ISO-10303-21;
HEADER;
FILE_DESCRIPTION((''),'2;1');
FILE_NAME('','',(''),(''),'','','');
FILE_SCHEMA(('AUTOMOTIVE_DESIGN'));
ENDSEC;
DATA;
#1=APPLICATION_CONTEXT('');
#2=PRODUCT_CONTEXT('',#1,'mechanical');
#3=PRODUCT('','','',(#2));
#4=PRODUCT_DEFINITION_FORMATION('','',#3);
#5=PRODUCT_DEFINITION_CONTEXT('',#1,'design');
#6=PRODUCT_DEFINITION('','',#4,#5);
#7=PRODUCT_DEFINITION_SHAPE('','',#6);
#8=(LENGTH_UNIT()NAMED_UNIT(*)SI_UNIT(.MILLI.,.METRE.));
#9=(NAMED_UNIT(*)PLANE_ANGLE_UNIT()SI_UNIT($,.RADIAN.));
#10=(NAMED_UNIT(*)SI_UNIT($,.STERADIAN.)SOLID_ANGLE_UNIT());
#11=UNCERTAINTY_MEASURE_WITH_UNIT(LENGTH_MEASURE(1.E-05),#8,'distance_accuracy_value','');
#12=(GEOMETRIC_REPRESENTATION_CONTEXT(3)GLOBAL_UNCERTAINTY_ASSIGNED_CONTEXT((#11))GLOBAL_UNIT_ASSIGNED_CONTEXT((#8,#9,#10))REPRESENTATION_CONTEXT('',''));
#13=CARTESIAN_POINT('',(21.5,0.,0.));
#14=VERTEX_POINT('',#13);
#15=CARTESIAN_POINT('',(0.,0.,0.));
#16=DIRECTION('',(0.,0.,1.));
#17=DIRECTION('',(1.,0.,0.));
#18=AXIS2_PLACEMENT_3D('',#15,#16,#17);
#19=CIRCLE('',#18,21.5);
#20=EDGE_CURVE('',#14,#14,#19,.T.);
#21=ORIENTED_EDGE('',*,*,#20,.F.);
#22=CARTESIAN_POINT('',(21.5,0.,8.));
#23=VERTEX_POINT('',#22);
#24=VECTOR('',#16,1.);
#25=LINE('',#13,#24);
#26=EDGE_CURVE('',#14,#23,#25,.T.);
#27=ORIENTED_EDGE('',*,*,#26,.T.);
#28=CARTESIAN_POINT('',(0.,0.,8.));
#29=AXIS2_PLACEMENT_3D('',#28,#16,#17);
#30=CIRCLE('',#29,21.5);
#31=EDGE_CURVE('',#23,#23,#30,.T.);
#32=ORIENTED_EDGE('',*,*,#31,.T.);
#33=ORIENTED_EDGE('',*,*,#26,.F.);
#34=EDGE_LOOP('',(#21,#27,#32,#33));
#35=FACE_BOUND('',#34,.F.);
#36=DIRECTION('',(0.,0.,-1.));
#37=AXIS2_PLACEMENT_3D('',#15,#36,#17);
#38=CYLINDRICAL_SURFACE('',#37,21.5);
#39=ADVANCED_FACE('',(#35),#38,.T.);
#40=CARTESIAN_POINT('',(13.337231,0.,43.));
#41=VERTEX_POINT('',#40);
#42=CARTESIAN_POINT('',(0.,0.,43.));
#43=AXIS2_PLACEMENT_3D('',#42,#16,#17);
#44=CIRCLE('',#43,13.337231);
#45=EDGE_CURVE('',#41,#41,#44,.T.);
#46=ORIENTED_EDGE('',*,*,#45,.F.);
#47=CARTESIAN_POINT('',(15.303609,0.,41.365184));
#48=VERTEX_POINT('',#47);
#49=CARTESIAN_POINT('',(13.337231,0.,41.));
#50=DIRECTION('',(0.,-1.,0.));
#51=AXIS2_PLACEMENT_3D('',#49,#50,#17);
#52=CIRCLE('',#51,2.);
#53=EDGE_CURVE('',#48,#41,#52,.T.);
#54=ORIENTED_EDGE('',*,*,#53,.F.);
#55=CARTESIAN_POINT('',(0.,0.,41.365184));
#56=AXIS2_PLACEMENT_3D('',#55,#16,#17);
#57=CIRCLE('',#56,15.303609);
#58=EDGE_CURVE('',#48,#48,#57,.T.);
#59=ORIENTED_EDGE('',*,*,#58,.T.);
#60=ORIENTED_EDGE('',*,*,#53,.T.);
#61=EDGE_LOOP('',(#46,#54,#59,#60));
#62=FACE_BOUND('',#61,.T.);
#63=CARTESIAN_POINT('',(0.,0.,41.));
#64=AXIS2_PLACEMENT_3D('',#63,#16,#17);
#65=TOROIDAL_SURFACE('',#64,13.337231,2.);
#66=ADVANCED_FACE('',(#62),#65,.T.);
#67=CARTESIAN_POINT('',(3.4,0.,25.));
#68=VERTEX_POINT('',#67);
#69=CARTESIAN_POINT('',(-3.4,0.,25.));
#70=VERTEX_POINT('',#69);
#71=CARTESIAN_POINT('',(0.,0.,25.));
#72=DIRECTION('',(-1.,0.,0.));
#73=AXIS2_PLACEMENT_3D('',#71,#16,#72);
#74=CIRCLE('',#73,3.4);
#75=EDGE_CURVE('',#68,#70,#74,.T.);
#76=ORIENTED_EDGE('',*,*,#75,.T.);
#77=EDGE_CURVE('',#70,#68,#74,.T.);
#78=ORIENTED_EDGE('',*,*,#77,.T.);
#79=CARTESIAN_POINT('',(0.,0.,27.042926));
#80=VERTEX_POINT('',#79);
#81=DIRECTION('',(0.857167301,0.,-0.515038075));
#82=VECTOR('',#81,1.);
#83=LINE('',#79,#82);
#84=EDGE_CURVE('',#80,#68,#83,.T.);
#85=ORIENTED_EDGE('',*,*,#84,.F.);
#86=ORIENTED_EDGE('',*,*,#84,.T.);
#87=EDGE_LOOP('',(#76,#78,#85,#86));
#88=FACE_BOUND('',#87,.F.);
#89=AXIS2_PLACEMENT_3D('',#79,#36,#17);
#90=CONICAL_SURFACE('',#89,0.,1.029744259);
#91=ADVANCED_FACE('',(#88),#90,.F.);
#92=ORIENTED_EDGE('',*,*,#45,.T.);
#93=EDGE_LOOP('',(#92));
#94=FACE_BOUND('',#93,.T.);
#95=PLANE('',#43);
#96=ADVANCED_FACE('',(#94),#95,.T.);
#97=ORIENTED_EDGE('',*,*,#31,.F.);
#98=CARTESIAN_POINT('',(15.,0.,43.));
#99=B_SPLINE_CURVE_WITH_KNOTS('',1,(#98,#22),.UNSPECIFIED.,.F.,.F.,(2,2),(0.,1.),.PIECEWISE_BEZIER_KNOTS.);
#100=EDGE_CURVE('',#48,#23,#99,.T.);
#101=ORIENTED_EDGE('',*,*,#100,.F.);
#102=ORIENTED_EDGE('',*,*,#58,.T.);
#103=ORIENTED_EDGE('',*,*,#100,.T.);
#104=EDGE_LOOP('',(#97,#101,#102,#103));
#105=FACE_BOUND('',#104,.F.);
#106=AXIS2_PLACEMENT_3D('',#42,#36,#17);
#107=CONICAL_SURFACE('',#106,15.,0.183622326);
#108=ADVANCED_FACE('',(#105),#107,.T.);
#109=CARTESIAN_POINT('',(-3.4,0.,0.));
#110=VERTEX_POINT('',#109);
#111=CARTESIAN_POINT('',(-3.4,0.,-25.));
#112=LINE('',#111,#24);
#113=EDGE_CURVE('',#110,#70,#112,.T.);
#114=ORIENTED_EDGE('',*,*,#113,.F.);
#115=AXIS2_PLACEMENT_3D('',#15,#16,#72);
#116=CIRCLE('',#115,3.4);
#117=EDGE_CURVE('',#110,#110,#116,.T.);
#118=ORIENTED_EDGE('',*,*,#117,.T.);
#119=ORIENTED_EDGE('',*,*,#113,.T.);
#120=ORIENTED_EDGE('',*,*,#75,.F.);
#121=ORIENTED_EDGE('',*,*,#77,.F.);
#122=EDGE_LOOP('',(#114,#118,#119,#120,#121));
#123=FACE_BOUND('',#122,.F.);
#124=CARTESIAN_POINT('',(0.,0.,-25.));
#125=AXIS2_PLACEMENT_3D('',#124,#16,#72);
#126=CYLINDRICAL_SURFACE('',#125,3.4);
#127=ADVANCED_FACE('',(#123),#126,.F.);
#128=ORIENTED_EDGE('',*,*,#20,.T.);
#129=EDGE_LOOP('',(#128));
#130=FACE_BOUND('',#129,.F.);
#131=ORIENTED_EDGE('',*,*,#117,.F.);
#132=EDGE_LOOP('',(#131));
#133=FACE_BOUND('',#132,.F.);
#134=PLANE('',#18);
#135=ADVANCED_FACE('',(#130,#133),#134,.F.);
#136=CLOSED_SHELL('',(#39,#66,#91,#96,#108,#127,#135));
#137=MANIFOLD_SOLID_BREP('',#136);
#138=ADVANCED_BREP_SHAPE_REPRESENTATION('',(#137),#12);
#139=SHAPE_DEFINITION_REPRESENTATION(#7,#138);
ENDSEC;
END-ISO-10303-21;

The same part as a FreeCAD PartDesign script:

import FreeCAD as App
import Part
import Sketcher

V = App.Vector
Q = App.Units.Quantity


def edges_at(feature, points):
    """Names of the edges that pass closest to the given points."""
    edges = feature.Shape.Edges
    near = lambda p: min(range(len(edges)), key=lambda i: edges[i].distToShape(Part.Vertex(*p))[0])
    return sorted({f"Edge{near(p) + 1}" for p in points})

doc = App.newDocument("Part")
body = doc.addObject("PartDesign::Body", "Body")

sketch1 = body.newObject("Sketcher::SketchObject", "Sketch")
sketch1.AttachmentSupport = (doc.getObject("XY_Plane"), [""])
sketch1.MapMode = "FlatFace"
sketch1.addGeometry(Part.Circle(V(0, 0, 0), V(0, 0, 1), 22), False)
sketch1.addConstraint(Sketcher.Constraint("Coincident", 0, 3, -1, 1))
sketch1.addConstraint(Sketcher.Constraint("Diameter", 0, Q("43 mm")))
pad1 = body.newObject("PartDesign::Pad", "Pad")
pad1.Profile = sketch1
pad1.Length = 8

sketch2 = body.newObject("Sketcher::SketchObject", "Sketch001")
sketch2.AttachmentSupport = (doc.getObject("XY_Plane"), [""])
sketch2.MapMode = "FlatFace"
sketch2.AttachmentOffset = App.Placement(V(0, 0, 43), App.Rotation())
sketch2.addGeometry(Part.Circle(V(0, 0, 0), V(0, 0, 1), 15), False)
sketch2.addConstraint(Sketcher.Constraint("Coincident", 0, 3, -1, 1))
sketch2.addConstraint(Sketcher.Constraint("Diameter", 0, Q("30 mm")))

sketch3 = body.newObject("Sketcher::SketchObject", "Sketch002")
sketch3.AttachmentSupport = (doc.getObject("XY_Plane"), [""])
sketch3.MapMode = "FlatFace"
sketch3.AttachmentOffset = App.Placement(V(0, 0, 8), App.Rotation())
sketch3.addGeometry(Part.Circle(V(0, 0, 0), V(0, 0, 1), 22), False)
sketch3.addConstraint(Sketcher.Constraint("Coincident", 0, 3, -1, 1))
sketch3.addConstraint(Sketcher.Constraint("Diameter", 0, Q("43 mm")))

additiveloft = body.newObject("PartDesign::AdditiveLoft", "AdditiveLoft")
additiveloft.Profile = sketch2
additiveloft.Sections = [sketch3]

sketch4 = body.newObject("Sketcher::SketchObject", "Sketch003")
sketch4.AttachmentSupport = (doc.getObject("XY_Plane"), [""])
sketch4.MapMode = "FlatFace"
sketch4.addGeometry(Part.Circle(V(0, 0, 0), V(0, 0, 1), 3.4), False)
sketch4.addConstraint(Sketcher.Constraint("Coincident", 0, 3, -1, 1))
sketch4.addConstraint(Sketcher.Constraint("Diameter", 0, Q("6.8 mm")))
doc.recompute()
hole = body.newObject("PartDesign::Hole", "Hole")
hole.Profile = sketch4
hole.ThreadType = "None"
hole.Diameter = 6.8
hole.DepthType = "Dimension"
hole.Depth = 25
hole.DrillPoint = "Angled"
hole.DrillPointAngle = 118
hole.Reversed = True
doc.recompute()

fillet = body.newObject("PartDesign::Fillet", "Fillet")
fillet.Base = (hole, edges_at(hole, [(-15, 0, 43)]))
fillet.Radius = 2

doc.recompute()
